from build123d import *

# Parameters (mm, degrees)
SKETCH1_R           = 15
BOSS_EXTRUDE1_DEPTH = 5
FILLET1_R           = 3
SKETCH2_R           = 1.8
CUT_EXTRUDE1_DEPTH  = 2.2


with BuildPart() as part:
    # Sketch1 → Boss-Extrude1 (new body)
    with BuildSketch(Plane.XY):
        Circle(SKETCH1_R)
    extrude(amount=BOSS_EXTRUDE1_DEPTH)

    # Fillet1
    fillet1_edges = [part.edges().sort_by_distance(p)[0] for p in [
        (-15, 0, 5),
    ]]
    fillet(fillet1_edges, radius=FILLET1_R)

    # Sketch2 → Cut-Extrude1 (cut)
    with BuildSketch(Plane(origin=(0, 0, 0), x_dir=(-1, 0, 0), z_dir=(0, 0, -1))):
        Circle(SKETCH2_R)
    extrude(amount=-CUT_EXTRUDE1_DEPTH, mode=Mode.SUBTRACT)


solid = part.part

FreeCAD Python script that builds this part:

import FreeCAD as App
import Part
import Sketcher
from FreeCAD import Vector
Q = App.Units.Quantity


def edges_at(feature, points):
    """Names of the edges that pass closest to the given points."""
    edges = feature.Shape.Edges
    near = lambda p: min(range(len(edges)), key=lambda i: edges[i].distToShape(Part.Vertex(*p))[0])
    return sorted({f"Edge{near(p) + 1}" for p in points})

doc = App.newDocument("Part")
body = doc.addObject("PartDesign::Body", "Body")

sketch1 = doc.addObject("Sketcher::SketchObject", "Sketch")
body.addObject(sketch1)
sketch1.AttachmentSupport = (doc.XY_Plane, [""])
sketch1.MapMode = "FlatFace"
sketch1.addGeometry(Part.Circle(Vector(0, 0, 0), Vector(0, 0, 1), 15), False)
sketch1.addConstraint([
    Sketcher.Constraint("Coincident", 0, 3, -1, 1),
    Sketcher.Constraint("Diameter", 0, Q("30 mm")),
])
pad1 = doc.addObject("PartDesign::Pad", "Pad")
body.addObject(pad1)
pad1.Profile = sketch1
pad1.Length = 5
doc.recompute()

fillet = doc.addObject("PartDesign::Fillet", "Fillet")
body.addObject(fillet)
fillet.Base = (pad1, edges_at(pad1, [(-15, 0, 5)]))
fillet.Radius = 3

sketch2 = doc.addObject("Sketcher::SketchObject", "Sketch001")
body.addObject(sketch2)
sketch2.AttachmentSupport = (doc.XY_Plane, [""])
sketch2.MapMode = "FlatFace"
sketch2.addGeometry(Part.Circle(Vector(0, 0, 0), Vector(0, 0, 1), 1.8), False)
sketch2.addConstraint([
    Sketcher.Constraint("Coincident", 0, 3, -1, 1),
    Sketcher.Constraint("Diameter", 0, Q("3.6 mm")),
])
pocket1 = doc.addObject("PartDesign::Pocket", "Pocket")
body.addObject(pocket1)
pocket1.Profile = sketch2
pocket1.Length = 2.2
pocket1.Reversed = True

doc.recompute()
